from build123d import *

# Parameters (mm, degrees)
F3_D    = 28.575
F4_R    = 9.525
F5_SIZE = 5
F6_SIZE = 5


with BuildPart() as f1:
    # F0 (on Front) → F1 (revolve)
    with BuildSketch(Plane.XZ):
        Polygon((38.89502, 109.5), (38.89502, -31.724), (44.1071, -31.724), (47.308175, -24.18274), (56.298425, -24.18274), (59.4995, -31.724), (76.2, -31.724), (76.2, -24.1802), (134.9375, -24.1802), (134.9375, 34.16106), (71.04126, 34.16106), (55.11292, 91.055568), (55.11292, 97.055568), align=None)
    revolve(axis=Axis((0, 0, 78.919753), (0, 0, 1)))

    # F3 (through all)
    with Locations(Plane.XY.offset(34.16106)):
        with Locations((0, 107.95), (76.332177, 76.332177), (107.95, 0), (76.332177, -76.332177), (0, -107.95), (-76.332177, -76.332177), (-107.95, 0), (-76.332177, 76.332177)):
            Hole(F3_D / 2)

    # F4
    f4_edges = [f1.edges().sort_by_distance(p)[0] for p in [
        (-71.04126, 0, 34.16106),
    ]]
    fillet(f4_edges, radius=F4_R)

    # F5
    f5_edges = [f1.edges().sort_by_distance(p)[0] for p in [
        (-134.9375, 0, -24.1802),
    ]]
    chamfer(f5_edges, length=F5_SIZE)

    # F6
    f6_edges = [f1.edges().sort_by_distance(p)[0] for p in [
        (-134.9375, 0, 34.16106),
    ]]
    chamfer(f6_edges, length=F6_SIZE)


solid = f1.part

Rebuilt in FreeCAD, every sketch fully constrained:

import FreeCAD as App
import Part
import Sketcher
from FreeCAD import Vector
Q = App.Units.Quantity


def edges_at(feature, points):
    """Names of the edges that pass closest to the given points."""
    edges = feature.Shape.Edges
    near = lambda p: min(range(len(edges)), key=lambda i: edges[i].distToShape(Part.Vertex(*p))[0])
    return sorted({f"Edge{near(p) + 1}" for p in points})

doc = App.newDocument("Part")
params = doc.addObject("Spreadsheet::Sheet", "Params")
for row, (alias, value) in enumerate([
    ("sketch1_height", "5.56 in"),
    ("sketch1_width", "2.3125 in"),
    ("sketch1_height2", "0.297 in"),
    ("revolution_angle", "360 deg"),
    ("sketch2_diameter", "1.125 in"),
    ("hole_diameter", "1.125 in"),
    ("fillet_radius", "0.375 in"),
    ("chamfer_size", "5 mm"),
    ("chamfer2_size", "5 mm"),
], start=1):
    params.set(f"A{row}", alias)
    params.set(f"B{row}", "=" + value)
    params.setAlias(f"B{row}", alias)

body = doc.addObject("PartDesign::Body", "Body")

# Sketch on XZ plane
sketch1 = body.newObject("Sketcher::SketchObject", "Sketch")
sketch1.AttachmentSupport = (doc.getObject("XZ_Plane"), [""])
sketch1.MapMode = "FlatFace"
sketch1.addGeometry([
    Part.LineSegment(Vector(38.89502, 109.5, 0), Vector(38.89502, -31.724, 0)),  # 0
    Part.LineSegment(Vector(38.89502, -31.724, 0), Vector(44.1071, -31.724, 0)),  # 1
    Part.LineSegment(Vector(44.1071, -31.724, 0), Vector(47.308175, -24.18274, 0)),  # 2
    Part.LineSegment(Vector(47.308175, -24.18274, 0), Vector(56.298425, -24.18274, 0)),  # 3
    Part.LineSegment(Vector(56.298425, -24.18274, 0), Vector(59.4995, -31.724, 0)),  # 4
    Part.LineSegment(Vector(59.4995, -31.724, 0), Vector(76.2, -31.724, 0)),  # 5
    Part.LineSegment(Vector(76.2, -31.724, 0), Vector(76.2, -24.1802, 0)),  # 6
    Part.LineSegment(Vector(76.2, -24.1802, 0), Vector(134.9375, -24.1802, 0)),  # 7
    Part.LineSegment(Vector(134.9375, -24.1802, 0), Vector(134.9375, 34.16106, 0)),  # 8
    Part.LineSegment(Vector(134.9375, 34.16106, 0), Vector(71.04126, 34.16106, 0)),  # 9
    Part.LineSegment(Vector(71.04126, 34.16106, 0), Vector(55.11292, 91.055568, 0)),  # 10
    Part.LineSegment(Vector(55.11292, 91.055568, 0), Vector(55.11292, 97.055568, 0)),  # 11
    Part.LineSegment(Vector(55.11292, 97.055568, 0), Vector(38.89502, 109.5, 0)),  # 12
], False)
sketch1.addConstraint([
    Sketcher.Constraint("Coincident", 0, 2, 1, 1),
    Sketcher.Constraint("Coincident", 1, 2, 2, 1),
    Sketcher.Constraint("Coincident", 2, 2, 3, 1),
    Sketcher.Constraint("Coincident", 3, 2, 4, 1),
    Sketcher.Constraint("Coincident", 4, 2, 5, 1),
    Sketcher.Constraint("Coincident", 5, 2, 6, 1),
    Sketcher.Constraint("Coincident", 6, 2, 7, 1),
    Sketcher.Constraint("Coincident", 7, 2, 8, 1),
    Sketcher.Constraint("Coincident", 8, 2, 9, 1),
    Sketcher.Constraint("Coincident", 9, 2, 10, 1),
    Sketcher.Constraint("Coincident", 10, 2, 11, 1),
    Sketcher.Constraint("Coincident", 11, 2, 12, 1),
    Sketcher.Constraint("Coincident", 12, 2, 0, 1),
    Sketcher.Constraint("Vertical", 0),
    Sketcher.Constraint("Horizontal", 1),
    Sketcher.Constraint("Horizontal", 3),
    Sketcher.Constraint("Horizontal", 5),
    Sketcher.Constraint("Vertical", 6),
    Sketcher.Constraint("Horizontal", 7),
    Sketcher.Constraint("Vertical", 8),
    Sketcher.Constraint("Horizontal", 9),
    Sketcher.Constraint("Vertical", 11),
    Sketcher.Constraint("Horizontal", 1, 2, 4, 2),
    Sketcher.Constraint("Equal", 2, 4),
    Sketcher.Constraint("DistanceX", -1, 1, 5, 2, Q("3 in")),
    Sketcher.Constraint("Angle", 2, Q("67 deg")),
    Sketcher.Constraint("DistanceY", 0, 2, 0, 1, Q("5.56 in")),
    Sketcher.Constraint("Angle", 12, Q("142.500001 deg")),
    Sketcher.Constraint("DistanceX", 7, 1, 7, 2, Q("2.3125 in")),
    Sketcher.Constraint("DistanceY", 6, 1, 6, 2, Q("0.297 in")),
    Sketcher.Constraint("DistanceX", 4, 2, 7, 2, Q("2.97 in")),
    Sketcher.Constraint("DistanceX", 1, 1, 1, 2, Q("0.2052 in")),
    Sketcher.Constraint("DistanceX", 9, 2, 9, 1, Q("2.5156 in")),
    Sketcher.Constraint("DistanceY", 8, 1, 8, 2, Q("2.2969 in")),
    Sketcher.Constraint("DistanceX", 1, 2, 4, 2, Q("0.606 in")),
    Sketcher.Constraint("DistanceY", 3, 2, 8, 2, Q("2.297 in")),
    Sketcher.Constraint("DistanceY", 11, 1, 11, 2, Q("6 mm")),
    Sketcher.Constraint("DistanceX", -1, 1, 10, 2, Q("2.1698 in")),
    Sketcher.Constraint("DistanceY", 0, 2, -1, 1, Q("31.724 mm")),
])
sketch1.setExpression("Constraints[26]", "Params.sketch1_height")
sketch1.setExpression("Constraints[28]", "Params.sketch1_width")
sketch1.setExpression("Constraints[29]", "Params.sketch1_height2")
revolution = body.newObject("PartDesign::Revolution", "Revolution")
revolution.Profile = sketch1
revolution.ReferenceAxis = (sketch1, ["V_Axis"])
revolution.setExpression("Angle", "Params.revolution_angle")

# Sketch on XY plane
sketch2 = body.newObject("Sketcher::SketchObject", "Sketch001")
sketch2.AttachmentSupport = (doc.getObject("XY_Plane"), [""])
sketch2.MapMode = "FlatFace"
sketch2.AttachmentOffset = App.Placement(Vector(0, 0, 34.16106), App.Rotation())
sketch2.addGeometry([
    Part.Circle(Vector(0, 107.95, 0), Vector(0, 0, 1), 14.2875),  # 0
    Part.Circle(Vector(76.332177, 76.332177, 0), Vector(0, 0, 1), 14.2875),  # 1
    Part.Circle(Vector(107.95, 0, 0), Vector(0, 0, 1), 14.2875),  # 2
    Part.Circle(Vector(76.332177, -76.332177, 0), Vector(0, 0, 1), 14.2875),  # 3
    Part.Circle(Vector(0, -107.95, 0), Vector(0, 0, 1), 14.2875),  # 4
    Part.Circle(Vector(-76.332177, -76.332177, 0), Vector(0, 0, 1), 14.2875),  # 5
    Part.Circle(Vector(-107.95, 0, 0), Vector(0, 0, 1), 14.2875),  # 6
    Part.Circle(Vector(-76.332177, 76.332177, 0), Vector(0, 0, 1), 14.2875),  # 7
], False)
sketch2.addConstraint([
    Sketcher.Constraint("Equal", 0, 1),
    Sketcher.Constraint("Equal", 1, 2),
    Sketcher.Constraint("Equal", 2, 3),
    Sketcher.Constraint("Equal", 3, 4),
    Sketcher.Constraint("Equal", 4, 5),
    Sketcher.Constraint("Equal", 5, 6),
    Sketcher.Constraint("Equal", 6, 7),
    Sketcher.Constraint("Symmetric", 0, 3, 4, 3, -1, 1),
    Sketcher.Constraint("Symmetric", 1, 3, 5, 3, -1, 1),
    Sketcher.Constraint("Symmetric", 2, 3, 6, 3, -1, 1),
    Sketcher.Constraint("Symmetric", 3, 3, 7, 3, -1, 1),
    Sketcher.Constraint("Symmetric", 3, 3, 5, 3, -2),
    Sketcher.Constraint("PointOnObject", 0, 3, -2),
    Sketcher.Constraint("PointOnObject", 2, 3, -1),
    Sketcher.Constraint("Diameter", 0, Q("1.125 in")),
    Sketcher.Constraint("DistanceY", 4, 3, 0, 3, Q("8.5 in")),
    Sketcher.Constraint("DistanceX", -1, 1, 2, 3, Q("4.25 in")),
    Sketcher.Constraint("DistanceX", -1, 1, 1, 3, Q("76.332177 mm")),
    Sketcher.Constraint("DistanceY", -1, 1, 1, 3, Q("76.332177 mm")),
])
sketch2.setExpression("Constraints[14]", "Params.sketch2_diameter")
doc.recompute()
hole = body.newObject("PartDesign::Hole", "Hole")
hole.Profile = sketch2
hole.ThreadType = "None"
hole.setExpression("Diameter", "Params.hole_diameter")
hole.DepthType = "ThroughAll"
doc.recompute()

fillet = body.newObject("PartDesign::Fillet", "Fillet")
fillet.Base = (hole, edges_at(hole, [(-71.041, 0, 34.161)]))
fillet.setExpression("Radius", "Params.fillet_radius")
doc.recompute()

chamfer = body.newObject("PartDesign::Chamfer", "Chamfer")
chamfer.Base = (fillet, edges_at(fillet, [(-134.938, 0, -24.18)]))
chamfer.setExpression("Size", "Params.chamfer_size")
doc.recompute()

chamfer2 = body.newObject("PartDesign::Chamfer", "Chamfer001")
chamfer2.Base = (chamfer, edges_at(chamfer, [(-134.938, 0, 34.161)]))
chamfer2.setExpression("Size", "Params.chamfer2_size")

doc.recompute()
